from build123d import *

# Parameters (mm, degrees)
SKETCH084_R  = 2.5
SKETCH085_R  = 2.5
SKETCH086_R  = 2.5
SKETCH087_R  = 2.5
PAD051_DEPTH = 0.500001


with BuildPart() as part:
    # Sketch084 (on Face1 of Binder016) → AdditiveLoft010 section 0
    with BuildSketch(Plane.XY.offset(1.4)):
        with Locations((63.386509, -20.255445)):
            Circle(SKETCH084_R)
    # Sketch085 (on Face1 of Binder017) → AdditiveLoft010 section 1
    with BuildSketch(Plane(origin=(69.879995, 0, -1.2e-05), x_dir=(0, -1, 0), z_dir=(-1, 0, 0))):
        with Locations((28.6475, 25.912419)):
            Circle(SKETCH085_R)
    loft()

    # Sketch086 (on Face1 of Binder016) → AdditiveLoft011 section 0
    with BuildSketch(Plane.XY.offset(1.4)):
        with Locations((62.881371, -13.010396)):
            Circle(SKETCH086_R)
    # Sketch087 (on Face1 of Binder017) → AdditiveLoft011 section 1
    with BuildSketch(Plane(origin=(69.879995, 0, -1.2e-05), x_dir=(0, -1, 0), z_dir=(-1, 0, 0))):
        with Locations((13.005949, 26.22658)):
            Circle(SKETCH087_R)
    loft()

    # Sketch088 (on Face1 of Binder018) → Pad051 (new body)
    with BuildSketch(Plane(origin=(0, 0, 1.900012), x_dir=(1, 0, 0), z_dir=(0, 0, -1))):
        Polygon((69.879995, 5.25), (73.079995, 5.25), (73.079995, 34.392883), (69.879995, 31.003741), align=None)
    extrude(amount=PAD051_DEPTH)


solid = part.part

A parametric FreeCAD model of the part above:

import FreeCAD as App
import Part
import Sketcher
from FreeCAD import Vector


def add_polygon(sketch, points):
    """Adds a closed chain of lines whose ends are joined by coincident constraints."""
    first, n = sketch.GeometryCount, len(points)
    for a, b in zip(points, points[1:] + points[:1]):
        sketch.addGeometry(Part.LineSegment(App.Vector(*a, 0), App.Vector(*b, 0)), False)
    for i in range(n):
        sketch.addConstraint(Sketcher.Constraint("Coincident", first + i, 2, first + (i + 1) % n, 1))

doc = App.newDocument("Part")
body = doc.addObject("PartDesign::Body", "Body")
body.AllowCompound = True

# Sketch on XY plane
sketch1 = body.newObject("Sketcher::SketchObject", "Sketch")
sketch1.AttachmentSupport = (doc.getObject("XY_Plane"), [""])
sketch1.MapMode = "FlatFace"
sketch1.AttachmentOffset = App.Placement(Vector(0, 0, 1.4), App.Rotation())
sketch1.addGeometry(Part.Circle(Vector(63.4, -20.3, 0), Vector(0, 0, 1), 2.5), False)
sketch1.addConstraint([
    Sketcher.Constraint("Diameter", 0, 5.0),
    Sketcher.Constraint("DistanceX", -1, 1, 0, 3, 63.386509),
    Sketcher.Constraint("DistanceY", 0, 3, -1, 1, 20.255445),
])

# Sketch on YZ plane
sketch2 = body.newObject("Sketcher::SketchObject", "Sketch001")
sketch2.AttachmentSupport = (doc.getObject("YZ_Plane"), [""])
sketch2.MapMode = "FlatFace"
sketch2.AttachmentOffset = App.Placement(Vector(0, 0, 69.879995), App.Rotation())
sketch2.addGeometry(Part.Circle(Vector(-28.6, 25.9, 0), Vector(0, 0, 1), 2.5), False)
sketch2.addConstraint([
    Sketcher.Constraint("Diameter", 0, 5.0),
    Sketcher.Constraint("DistanceX", 0, 3, -1, 1, 28.6475),
    Sketcher.Constraint("DistanceY", -1, 1, 0, 3, 25.912407),
])

additiveloft = body.newObject("PartDesign::AdditiveLoft", "AdditiveLoft")
additiveloft.Profile = sketch1
additiveloft.Sections = [sketch2]

# Sketch on XY plane
sketch3 = body.newObject("Sketcher::SketchObject", "Sketch002")
sketch3.AttachmentSupport = (doc.getObject("XY_Plane"), [""])
sketch3.MapMode = "FlatFace"
sketch3.AttachmentOffset = App.Placement(Vector(0, 0, 1.4), App.Rotation())
sketch3.addGeometry(Part.Circle(Vector(62.9, -13, 0), Vector(0, 0, 1), 2.5), False)
sketch3.addConstraint([
    Sketcher.Constraint("Diameter", 0, 5.0),
    Sketcher.Constraint("DistanceX", -1, 1, 0, 3, 62.881371),
    Sketcher.Constraint("DistanceY", 0, 3, -1, 1, 13.010396),
])

# Sketch on YZ plane
sketch4 = body.newObject("Sketcher::SketchObject", "Sketch003")
sketch4.AttachmentSupport = (doc.getObject("YZ_Plane"), [""])
sketch4.MapMode = "FlatFace"
sketch4.AttachmentOffset = App.Placement(Vector(0, 0, 69.879995), App.Rotation())
sketch4.addGeometry(Part.Circle(Vector(-13, 26.2, 0), Vector(0, 0, 1), 2.5), False)
sketch4.addConstraint([
    Sketcher.Constraint("Diameter", 0, 5.0),
    Sketcher.Constraint("DistanceX", 0, 3, -1, 1, 13.005949),
    Sketcher.Constraint("DistanceY", -1, 1, 0, 3, 26.226568),
])

additiveloft2 = body.newObject("PartDesign::AdditiveLoft", "AdditiveLoft001")
additiveloft2.Profile = sketch3
additiveloft2.Sections = [sketch4]

# Sketch on XY plane
sketch5 = body.newObject("Sketcher::SketchObject", "Sketch004")
sketch5.AttachmentSupport = (doc.getObject("XY_Plane"), [""])
sketch5.MapMode = "FlatFace"
sketch5.AttachmentOffset = App.Placement(Vector(0, 0, 1.900012), App.Rotation())
add_polygon(sketch5, [(69.9, -5.2), (73.1, -5.2), (73.1, -34.4), (69.9, -31)])  # lines 0-3
sketch5.addConstraint([
    Sketcher.Constraint("Horizontal", 0),
    Sketcher.Constraint("Vertical", 1),
    Sketcher.Constraint("Vertical", 3),
    Sketcher.Constraint("DistanceX", 0, 1, 0, 2, 3.2),
    Sketcher.Constraint("DistanceY", 0, 2, -1, 1, 5.25),
    Sketcher.Constraint("DistanceY", 3, 1, 3, 2, 25.753741),
    Sketcher.Constraint("DistanceY", 1, 2, 1, 1, 29.142883),
    Sketcher.Constraint("DistanceX", -1, 1, 0, 2, 73.079995),
])
pad1 = body.newObject("PartDesign::Pad", "Pad")
pad1.Profile = sketch5
pad1.Length = 0.500001
pad1.Reversed = True

doc.recompute()
